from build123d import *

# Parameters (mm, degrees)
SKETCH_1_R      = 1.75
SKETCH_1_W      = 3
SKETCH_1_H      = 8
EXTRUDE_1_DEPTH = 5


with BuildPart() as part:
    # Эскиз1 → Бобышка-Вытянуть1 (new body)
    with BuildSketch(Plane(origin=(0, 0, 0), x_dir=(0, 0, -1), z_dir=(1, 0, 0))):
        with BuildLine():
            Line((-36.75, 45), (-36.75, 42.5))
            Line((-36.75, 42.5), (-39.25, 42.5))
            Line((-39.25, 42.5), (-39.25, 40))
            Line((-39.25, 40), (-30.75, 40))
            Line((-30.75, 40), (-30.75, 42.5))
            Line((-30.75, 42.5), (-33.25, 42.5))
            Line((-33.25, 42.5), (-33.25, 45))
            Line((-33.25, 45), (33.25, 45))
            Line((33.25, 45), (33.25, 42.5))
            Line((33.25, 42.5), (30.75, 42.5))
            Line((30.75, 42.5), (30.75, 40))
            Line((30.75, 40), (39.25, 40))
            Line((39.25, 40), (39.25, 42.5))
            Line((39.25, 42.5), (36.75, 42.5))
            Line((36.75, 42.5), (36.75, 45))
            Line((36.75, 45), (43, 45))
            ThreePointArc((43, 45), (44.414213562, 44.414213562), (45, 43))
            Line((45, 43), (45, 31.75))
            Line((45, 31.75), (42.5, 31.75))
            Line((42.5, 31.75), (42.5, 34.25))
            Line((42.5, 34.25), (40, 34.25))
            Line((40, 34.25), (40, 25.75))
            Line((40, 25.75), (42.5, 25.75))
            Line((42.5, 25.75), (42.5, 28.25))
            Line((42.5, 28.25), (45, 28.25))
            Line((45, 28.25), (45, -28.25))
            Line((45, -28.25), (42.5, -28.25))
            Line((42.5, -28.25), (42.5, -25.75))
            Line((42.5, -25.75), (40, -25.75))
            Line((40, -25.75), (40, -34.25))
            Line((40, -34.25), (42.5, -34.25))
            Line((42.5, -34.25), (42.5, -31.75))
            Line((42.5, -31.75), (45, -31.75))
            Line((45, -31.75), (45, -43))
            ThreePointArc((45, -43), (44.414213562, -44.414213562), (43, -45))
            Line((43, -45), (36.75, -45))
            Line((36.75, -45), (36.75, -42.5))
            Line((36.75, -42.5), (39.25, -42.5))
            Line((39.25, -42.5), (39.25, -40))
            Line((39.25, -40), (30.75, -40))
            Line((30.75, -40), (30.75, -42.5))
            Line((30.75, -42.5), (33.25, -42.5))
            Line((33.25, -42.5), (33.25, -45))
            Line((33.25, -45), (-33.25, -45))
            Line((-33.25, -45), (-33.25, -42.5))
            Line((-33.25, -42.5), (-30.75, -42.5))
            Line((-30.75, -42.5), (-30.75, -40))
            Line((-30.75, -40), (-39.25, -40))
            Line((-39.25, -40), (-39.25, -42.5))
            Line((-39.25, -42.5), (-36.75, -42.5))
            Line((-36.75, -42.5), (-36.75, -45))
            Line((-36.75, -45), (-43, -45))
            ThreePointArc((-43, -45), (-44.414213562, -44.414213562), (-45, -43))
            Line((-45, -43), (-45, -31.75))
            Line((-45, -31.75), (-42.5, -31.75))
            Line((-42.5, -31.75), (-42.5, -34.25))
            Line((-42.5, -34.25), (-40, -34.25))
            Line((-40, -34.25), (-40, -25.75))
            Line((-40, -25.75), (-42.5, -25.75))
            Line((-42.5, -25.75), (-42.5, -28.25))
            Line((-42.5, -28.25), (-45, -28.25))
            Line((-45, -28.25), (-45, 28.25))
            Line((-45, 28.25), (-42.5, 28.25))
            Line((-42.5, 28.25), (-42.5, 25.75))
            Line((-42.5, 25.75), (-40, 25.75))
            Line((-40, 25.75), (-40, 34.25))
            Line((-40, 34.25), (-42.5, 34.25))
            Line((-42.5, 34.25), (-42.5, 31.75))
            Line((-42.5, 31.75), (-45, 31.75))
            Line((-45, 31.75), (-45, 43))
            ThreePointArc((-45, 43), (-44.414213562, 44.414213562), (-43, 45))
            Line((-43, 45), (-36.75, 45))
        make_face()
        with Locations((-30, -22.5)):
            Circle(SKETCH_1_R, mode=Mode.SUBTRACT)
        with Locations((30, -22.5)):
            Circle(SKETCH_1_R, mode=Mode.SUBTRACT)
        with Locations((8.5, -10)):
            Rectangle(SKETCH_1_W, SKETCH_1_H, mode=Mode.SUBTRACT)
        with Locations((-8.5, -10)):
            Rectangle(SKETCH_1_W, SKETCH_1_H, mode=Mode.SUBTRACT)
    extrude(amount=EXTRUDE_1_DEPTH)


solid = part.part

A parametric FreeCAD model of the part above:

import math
import FreeCAD as App
import Part
import Sketcher


def add_polygon(sketch, points):
    """Adds a closed chain of lines whose ends are joined by coincident constraints."""
    first, n = sketch.GeometryCount, len(points)
    for a, b in zip(points, points[1:] + points[:1]):
        sketch.addGeometry(Part.LineSegment(App.Vector(*a, 0), App.Vector(*b, 0)), False)
    for i in range(n):
        sketch.addConstraint(Sketcher.Constraint("Coincident", first + i, 2, first + (i + 1) % n, 1))

doc = App.newDocument("Part")
body = doc.addObject("PartDesign::Body", "Body")

# Sketch on YZ plane
sketch1 = doc.addObject("Sketcher::SketchObject", "Sketch")
body.addObject(sketch1)
sketch1.AttachmentSupport = (doc.YZ_Plane, [""])
sketch1.MapMode = "FlatFace"
sketch1.addGeometry(Part.LineSegment(App.Vector(42.5, 36.8, 0), App.Vector(45, 36.8, 0)), False)  # 0
sketch1.addGeometry(Part.LineSegment(App.Vector(45, 36.8, 0), App.Vector(45, 43, 0)), False)  # 1
sketch1.addGeometry(Part.ArcOfCircle(Part.Circle(App.Vector(43, 43, 0), App.Vector(0, 0, 1), 2), math.radians(0), math.radians(90)), False)  # 2
sketch1.addGeometry(Part.LineSegment(App.Vector(43, 45, 0), App.Vector(31.8, 45, 0)), False)  # 3
sketch1.addGeometry(Part.LineSegment(App.Vector(31.8, 45, 0), App.Vector(31.8, 42.5, 0)), False)  # 4
sketch1.addGeometry(Part.LineSegment(App.Vector(31.8, 42.5, 0), App.Vector(34.2, 42.5, 0)), False)  # 5
sketch1.addGeometry(Part.LineSegment(App.Vector(34.2, 42.5, 0), App.Vector(34.2, 40, 0)), False)  # 6
sketch1.addGeometry(Part.LineSegment(App.Vector(34.2, 40, 0), App.Vector(25.8, 40, 0)), False)  # 7
sketch1.addGeometry(Part.LineSegment(App.Vector(25.8, 40, 0), App.Vector(25.8, 42.5, 0)), False)  # 8
sketch1.addGeometry(Part.LineSegment(App.Vector(25.8, 42.5, 0), App.Vector(28.2, 42.5, 0)), False)  # 9
sketch1.addGeometry(Part.LineSegment(App.Vector(28.2, 42.5, 0), App.Vector(28.2, 45, 0)), False)  # 10
sketch1.addGeometry(Part.LineSegment(App.Vector(28.2, 45, 0), App.Vector(-28.2, 45, 0)), False)  # 11
sketch1.addGeometry(Part.LineSegment(App.Vector(-28.2, 45, 0), App.Vector(-28.2, 42.5, 0)), False)  # 12
sketch1.addGeometry(Part.LineSegment(App.Vector(-28.2, 42.5, 0), App.Vector(-25.8, 42.5, 0)), False)  # 13
sketch1.addGeometry(Part.LineSegment(App.Vector(-25.8, 42.5, 0), App.Vector(-25.8, 40, 0)), False)  # 14
sketch1.addGeometry(Part.LineSegment(App.Vector(-25.8, 40, 0), App.Vector(-34.2, 40, 0)), False)  # 15
sketch1.addGeometry(Part.LineSegment(App.Vector(-34.2, 40, 0), App.Vector(-34.2, 42.5, 0)), False)  # 16
sketch1.addGeometry(Part.LineSegment(App.Vector(-34.2, 42.5, 0), App.Vector(-31.8, 42.5, 0)), False)  # 17
sketch1.addGeometry(Part.LineSegment(App.Vector(-31.8, 42.5, 0), App.Vector(-31.8, 45, 0)), False)  # 18
sketch1.addGeometry(Part.LineSegment(App.Vector(-31.8, 45, 0), App.Vector(-43, 45, 0)), False)  # 19
sketch1.addGeometry(Part.ArcOfCircle(Part.Circle(App.Vector(-43, 43, 0), App.Vector(0, 0, 1), 2), math.radians(90), math.radians(180)), False)  # 20
sketch1.addGeometry(Part.LineSegment(App.Vector(-45, 43, 0), App.Vector(-45, 36.8, 0)), False)  # 21
sketch1.addGeometry(Part.LineSegment(App.Vector(-45, 36.8, 0), App.Vector(-42.5, 36.8, 0)), False)  # 22
sketch1.addGeometry(Part.LineSegment(App.Vector(-42.5, 36.8, 0), App.Vector(-42.5, 39.2, 0)), False)  # 23
sketch1.addGeometry(Part.LineSegment(App.Vector(-42.5, 39.2, 0), App.Vector(-40, 39.2, 0)), False)  # 24
sketch1.addGeometry(Part.LineSegment(App.Vector(-40, 39.2, 0), App.Vector(-40, 30.8, 0)), False)  # 25
sketch1.addGeometry(Part.LineSegment(App.Vector(-40, 30.8, 0), App.Vector(-42.5, 30.8, 0)), False)  # 26
sketch1.addGeometry(Part.LineSegment(App.Vector(-42.5, 30.8, 0), App.Vector(-42.5, 33.2, 0)), False)  # 27
sketch1.addGeometry(Part.LineSegment(App.Vector(-42.5, 33.2, 0), App.Vector(-45, 33.2, 0)), False)  # 28
sketch1.addGeometry(Part.LineSegment(App.Vector(-45, 33.2, 0), App.Vector(-45, -33.2, 0)), False)  # 29
sketch1.addGeometry(Part.LineSegment(App.Vector(-45, -33.2, 0), App.Vector(-42.5, -33.2, 0)), False)  # 30
sketch1.addGeometry(Part.LineSegment(App.Vector(-42.5, -33.2, 0), App.Vector(-42.5, -30.8, 0)), False)  # 31
sketch1.addGeometry(Part.LineSegment(App.Vector(-42.5, -30.8, 0), App.Vector(-40, -30.8, 0)), False)  # 32
sketch1.addGeometry(Part.LineSegment(App.Vector(-40, -30.8, 0), App.Vector(-40, -39.2, 0)), False)  # 33
sketch1.addGeometry(Part.LineSegment(App.Vector(-40, -39.2, 0), App.Vector(-42.5, -39.2, 0)), False)  # 34
sketch1.addGeometry(Part.LineSegment(App.Vector(-42.5, -39.2, 0), App.Vector(-42.5, -36.8, 0)), False)  # 35
sketch1.addGeometry(Part.LineSegment(App.Vector(-42.5, -36.8, 0), App.Vector(-45, -36.8, 0)), False)  # 36
sketch1.addGeometry(Part.LineSegment(App.Vector(-45, -36.8, 0), App.Vector(-45, -43, 0)), False)  # 37
sketch1.addGeometry(Part.ArcOfCircle(Part.Circle(App.Vector(-43, -43, 0), App.Vector(0, 0, 1), 2), math.radians(-180), math.radians(-90)), False)  # 38
sketch1.addGeometry(Part.LineSegment(App.Vector(-43, -45, 0), App.Vector(-31.8, -45, 0)), False)  # 39
sketch1.addGeometry(Part.LineSegment(App.Vector(-31.8, -45, 0), App.Vector(-31.8, -42.5, 0)), False)  # 40
sketch1.addGeometry(Part.LineSegment(App.Vector(-31.8, -42.5, 0), App.Vector(-34.2, -42.5, 0)), False)  # 41
sketch1.addGeometry(Part.LineSegment(App.Vector(-34.2, -42.5, 0), App.Vector(-34.2, -40, 0)), False)  # 42
sketch1.addGeometry(Part.LineSegment(App.Vector(-34.2, -40, 0), App.Vector(-25.8, -40, 0)), False)  # 43
sketch1.addGeometry(Part.LineSegment(App.Vector(-25.8, -40, 0), App.Vector(-25.8, -42.5, 0)), False)  # 44
sketch1.addGeometry(Part.LineSegment(App.Vector(-25.8, -42.5, 0), App.Vector(-28.2, -42.5, 0)), False)  # 45
sketch1.addGeometry(Part.LineSegment(App.Vector(-28.2, -42.5, 0), App.Vector(-28.2, -45, 0)), False)  # 46
sketch1.addGeometry(Part.LineSegment(App.Vector(-28.2, -45, 0), App.Vector(28.2, -45, 0)), False)  # 47
sketch1.addGeometry(Part.LineSegment(App.Vector(28.2, -45, 0), App.Vector(28.2, -42.5, 0)), False)  # 48
sketch1.addGeometry(Part.LineSegment(App.Vector(28.2, -42.5, 0), App.Vector(25.8, -42.5, 0)), False)  # 49
sketch1.addGeometry(Part.LineSegment(App.Vector(25.8, -42.5, 0), App.Vector(25.8, -40, 0)), False)  # 50
sketch1.addGeometry(Part.LineSegment(App.Vector(25.8, -40, 0), App.Vector(34.2, -40, 0)), False)  # 51
sketch1.addGeometry(Part.LineSegment(App.Vector(34.2, -40, 0), App.Vector(34.2, -42.5, 0)), False)  # 52
sketch1.addGeometry(Part.LineSegment(App.Vector(34.2, -42.5, 0), App.Vector(31.8, -42.5, 0)), False)  # 53
sketch1.addGeometry(Part.LineSegment(App.Vector(31.8, -42.5, 0), App.Vector(31.8, -45, 0)), False)  # 54
sketch1.addGeometry(Part.LineSegment(App.Vector(31.8, -45, 0), App.Vector(43, -45, 0)), False)  # 55
sketch1.addGeometry(Part.ArcOfCircle(Part.Circle(App.Vector(43, -43, 0), App.Vector(0, 0, 1), 2), math.radians(-90), math.radians(0)), False)  # 56
sketch1.addGeometry(Part.LineSegment(App.Vector(45, -43, 0), App.Vector(45, -36.8, 0)), False)  # 57
sketch1.addGeometry(Part.LineSegment(App.Vector(45, -36.8, 0), App.Vector(42.5, -36.8, 0)), False)  # 58
sketch1.addGeometry(Part.LineSegment(App.Vector(42.5, -36.8, 0), App.Vector(42.5, -39.2, 0)), False)  # 59
sketch1.addGeometry(Part.LineSegment(App.Vector(42.5, -39.2, 0), App.Vector(40, -39.2, 0)), False)  # 60
sketch1.addGeometry(Part.LineSegment(App.Vector(40, -39.2, 0), App.Vector(40, -30.8, 0)), False)  # 61
sketch1.addGeometry(Part.LineSegment(App.Vector(40, -30.8, 0), App.Vector(42.5, -30.8, 0)), False)  # 62
sketch1.addGeometry(Part.LineSegment(App.Vector(42.5, -30.8, 0), App.Vector(42.5, -33.2, 0)), False)  # 63
sketch1.addGeometry(Part.LineSegment(App.Vector(42.5, -33.2, 0), App.Vector(45, -33.2, 0)), False)  # 64
sketch1.addGeometry(Part.LineSegment(App.Vector(45, -33.2, 0), App.Vector(45, 33.2, 0)), False)  # 65
sketch1.addGeometry(Part.LineSegment(App.Vector(45, 33.2, 0), App.Vector(42.5, 33.2, 0)), False)  # 66
sketch1.addGeometry(Part.LineSegment(App.Vector(42.5, 33.2, 0), App.Vector(42.5, 30.8, 0)), False)  # 67
sketch1.addGeometry(Part.LineSegment(App.Vector(42.5, 30.8, 0), App.Vector(40, 30.8, 0)), False)  # 68
sketch1.addGeometry(Part.LineSegment(App.Vector(40, 30.8, 0), App.Vector(40, 39.2, 0)), False)  # 69
sketch1.addGeometry(Part.LineSegment(App.Vector(40, 39.2, 0), App.Vector(42.5, 39.2, 0)), False)  # 70
sketch1.addGeometry(Part.LineSegment(App.Vector(42.5, 39.2, 0), App.Vector(42.5, 36.8, 0)), False)  # 71
sketch1.addGeometry(Part.Circle(App.Vector(-22.5, -30, 0), App.Vector(0, 0, 1), 1.8), False)  # 72
sketch1.addGeometry(Part.Circle(App.Vector(-22.5, 30, 0), App.Vector(0, 0, 1), 1.8), False)  # 73
add_polygon(sketch1, [(-14, -7), (-6, -7), (-6, -10), (-14, -10)])  # lines 74-77
add_polygon(sketch1, [(-14, 10), (-6, 10), (-6, 7), (-14, 7)])  # lines 78-81
sketch1.addConstraint([
    Sketcher.Constraint("Coincident", 0, 2, 1, 1),
    Sketcher.Constraint("Tangent", 1, 2, 2, 1),
    Sketcher.Constraint("Tangent", 2, 2, 3, 1),
    Sketcher.Constraint("Coincident", 3, 2, 4, 1),
    Sketcher.Constraint("Coincident", 4, 2, 5, 1),
    Sketcher.Constraint("Coincident", 5, 2, 6, 1),
    Sketcher.Constraint("Coincident", 6, 2, 7, 1),
    Sketcher.Constraint("Coincident", 7, 2, 8, 1),
    Sketcher.Constraint("Coincident", 8, 2, 9, 1),
    Sketcher.Constraint("Coincident", 9, 2, 10, 1),
    Sketcher.Constraint("Coincident", 10, 2, 11, 1),
    Sketcher.Constraint("Coincident", 11, 2, 12, 1),
    Sketcher.Constraint("Coincident", 12, 2, 13, 1),
    Sketcher.Constraint("Coincident", 13, 2, 14, 1),
    Sketcher.Constraint("Coincident", 14, 2, 15, 1),
    Sketcher.Constraint("Coincident", 15, 2, 16, 1),
    Sketcher.Constraint("Coincident", 16, 2, 17, 1),
    Sketcher.Constraint("Coincident", 17, 2, 18, 1),
    Sketcher.Constraint("Coincident", 18, 2, 19, 1),
    Sketcher.Constraint("Tangent", 19, 2, 20, 1),
    Sketcher.Constraint("Tangent", 20, 2, 21, 1),
    Sketcher.Constraint("Coincident", 21, 2, 22, 1),
    Sketcher.Constraint("Coincident", 22, 2, 23, 1),
    Sketcher.Constraint("Coincident", 23, 2, 24, 1),
    Sketcher.Constraint("Coincident", 24, 2, 25, 1),
    Sketcher.Constraint("Coincident", 25, 2, 26, 1),
    Sketcher.Constraint("Coincident", 26, 2, 27, 1),
    Sketcher.Constraint("Coincident", 27, 2, 28, 1),
    Sketcher.Constraint("Coincident", 28, 2, 29, 1),
    Sketcher.Constraint("Coincident", 29, 2, 30, 1),
    Sketcher.Constraint("Coincident", 30, 2, 31, 1),
    Sketcher.Constraint("Coincident", 31, 2, 32, 1),
    Sketcher.Constraint("Coincident", 32, 2, 33, 1),
    Sketcher.Constraint("Coincident", 33, 2, 34, 1),
    Sketcher.Constraint("Coincident", 34, 2, 35, 1),
    Sketcher.Constraint("Coincident", 35, 2, 36, 1),
    Sketcher.Constraint("Coincident", 36, 2, 37, 1),
    Sketcher.Constraint("Tangent", 37, 2, 38, 1),
    Sketcher.Constraint("Tangent", 38, 2, 39, 1),
    Sketcher.Constraint("Coincident", 39, 2, 40, 1),
    Sketcher.Constraint("Coincident", 40, 2, 41, 1),
    Sketcher.Constraint("Coincident", 41, 2, 42, 1),
    Sketcher.Constraint("Coincident", 42, 2, 43, 1),
    Sketcher.Constraint("Coincident", 43, 2, 44, 1),
    Sketcher.Constraint("Coincident", 44, 2, 45, 1),
    Sketcher.Constraint("Coincident", 45, 2, 46, 1),
    Sketcher.Constraint("Coincident", 46, 2, 47, 1),
    Sketcher.Constraint("Coincident", 47, 2, 48, 1),
    Sketcher.Constraint("Coincident", 48, 2, 49, 1),
    Sketcher.Constraint("Coincident", 49, 2, 50, 1),
    Sketcher.Constraint("Coincident", 50, 2, 51, 1),
    Sketcher.Constraint("Coincident", 51, 2, 52, 1),
    Sketcher.Constraint("Coincident", 52, 2, 53, 1),
    Sketcher.Constraint("Coincident", 53, 2, 54, 1),
    Sketcher.Constraint("Coincident", 54, 2, 55, 1),
    Sketcher.Constraint("Tangent", 55, 2, 56, 1),
    Sketcher.Constraint("Tangent", 56, 2, 57, 1),
    Sketcher.Constraint("Coincident", 57, 2, 58, 1),
    Sketcher.Constraint("Coincident", 58, 2, 59, 1),
    Sketcher.Constraint("Coincident", 59, 2, 60, 1),
    Sketcher.Constraint("Coincident", 60, 2, 61, 1),
    Sketcher.Constraint("Coincident", 61, 2, 62, 1),
    Sketcher.Constraint("Coincident", 62, 2, 63, 1),
    Sketcher.Constraint("Coincident", 63, 2, 64, 1),
    Sketcher.Constraint("Coincident", 64, 2, 65, 1),
    Sketcher.Constraint("Coincident", 65, 2, 66, 1),
    Sketcher.Constraint("Coincident", 66, 2, 67, 1),
    Sketcher.Constraint("Coincident", 67, 2, 68, 1),
    Sketcher.Constraint("Coincident", 68, 2, 69, 1),
    Sketcher.Constraint("Coincident", 69, 2, 70, 1),
    Sketcher.Constraint("Coincident", 70, 2, 71, 1),
    Sketcher.Constraint("Coincident", 71, 2, 0, 1),
    Sketcher.Constraint("Horizontal", 0),
    Sketcher.Constraint("Vertical", 1),
    Sketcher.Constraint("Horizontal", 3),
    Sketcher.Constraint("Vertical", 4),
    Sketcher.Constraint("Horizontal", 5),
    Sketcher.Constraint("Vertical", 6),
    Sketcher.Constraint("Horizontal", 7),
    Sketcher.Constraint("Vertical", 8),
    Sketcher.Constraint("Horizontal", 9),
    Sketcher.Constraint("Vertical", 10),
    Sketcher.Constraint("Horizontal", 11),
    Sketcher.Constraint("Vertical", 12),
    Sketcher.Constraint("Horizontal", 13),
    Sketcher.Constraint("Vertical", 14),
    Sketcher.Constraint("Horizontal", 15),
    Sketcher.Constraint("Vertical", 16),
    Sketcher.Constraint("Horizontal", 17),
    Sketcher.Constraint("Vertical", 18),
    Sketcher.Constraint("Horizontal", 19),
    Sketcher.Constraint("Vertical", 21),
    Sketcher.Constraint("Horizontal", 22),
    Sketcher.Constraint("Vertical", 23),
    Sketcher.Constraint("Horizontal", 24),
    Sketcher.Constraint("Vertical", 25),
    Sketcher.Constraint("Horizontal", 26),
    Sketcher.Constraint("Vertical", 27),
    Sketcher.Constraint("Horizontal", 28),
    Sketcher.Constraint("Vertical", 29),
    Sketcher.Constraint("Horizontal", 30),
    Sketcher.Constraint("Vertical", 31),
    Sketcher.Constraint("Horizontal", 32),
    Sketcher.Constraint("Vertical", 33),
    Sketcher.Constraint("Horizontal", 34),
    Sketcher.Constraint("Vertical", 35),
    Sketcher.Constraint("Horizontal", 36),
    Sketcher.Constraint("Vertical", 37),
    Sketcher.Constraint("Horizontal", 39),
    Sketcher.Constraint("Vertical", 40),
    Sketcher.Constraint("Horizontal", 41),
    Sketcher.Constraint("Vertical", 42),
    Sketcher.Constraint("Horizontal", 43),
    Sketcher.Constraint("Vertical", 44),
    Sketcher.Constraint("Horizontal", 45),
    Sketcher.Constraint("Vertical", 46),
    Sketcher.Constraint("Horizontal", 47),
    Sketcher.Constraint("Vertical", 48),
    Sketcher.Constraint("Horizontal", 49),
    Sketcher.Constraint("Vertical", 50),
    Sketcher.Constraint("Horizontal", 51),
    Sketcher.Constraint("Vertical", 52),
    Sketcher.Constraint("Horizontal", 53),
    Sketcher.Constraint("Vertical", 54),
    Sketcher.Constraint("Horizontal", 55),
    Sketcher.Constraint("Vertical", 57),
    Sketcher.Constraint("Horizontal", 58),
    Sketcher.Constraint("Vertical", 59),
    Sketcher.Constraint("Horizontal", 60),
    Sketcher.Constraint("Vertical", 61),
    Sketcher.Constraint("Horizontal", 62),
    Sketcher.Constraint("Vertical", 63),
    Sketcher.Constraint("Horizontal", 64),
    Sketcher.Constraint("Vertical", 65),
    Sketcher.Constraint("Horizontal", 66),
    Sketcher.Constraint("Vertical", 67),
    Sketcher.Constraint("Horizontal", 68),
    Sketcher.Constraint("Vertical", 69),
    Sketcher.Constraint("Horizontal", 70),
    Sketcher.Constraint("Vertical", 71),
    Sketcher.Constraint("Horizontal", 74),
    Sketcher.Constraint("Vertical", 75),
    Sketcher.Constraint("Horizontal", 76),
    Sketcher.Constraint("Vertical", 77),
    Sketcher.Constraint("Horizontal", 78),
    Sketcher.Constraint("Vertical", 79),
    Sketcher.Constraint("Horizontal", 80),
    Sketcher.Constraint("Vertical", 81),
    Sketcher.Constraint("Equal", 2, 20),
    Sketcher.Constraint("Equal", 20, 38),
    Sketcher.Constraint("Equal", 38, 56),
    Sketcher.Constraint("Equal", 72, 73),
    Sketcher.Constraint("Symmetric", 2, 3, 38, 3, -1, 1),
    Sketcher.Constraint("Symmetric", 20, 3, 56, 3, -1, 1),
    Sketcher.Constraint("Symmetric", 4, 2, 40, 2, -1, 1),
    Sketcher.Constraint("Symmetric", 6, 2, 42, 2, -1, 1),
    Sketcher.Constraint("Symmetric", 8, 2, 44, 2, -1, 1),
    Sketcher.Constraint("Symmetric", 10, 2, 46, 2, -1, 1),
    Sketcher.Constraint("Symmetric", 12, 2, 48, 2, -1, 1),
    Sketcher.Constraint("Symmetric", 14, 2, 50, 2, -1, 1),
    Sketcher.Constraint("Symmetric", 16, 2, 52, 2, -1, 1),
    Sketcher.Constraint("Symmetric", 22, 2, 58, 2, -1, 1),
    Sketcher.Constraint("Symmetric", 24, 2, 60, 2, -1, 1),
    Sketcher.Constraint("Symmetric", 26, 2, 62, 2, -1, 1),
    Sketcher.Constraint("Symmetric", 28, 2, 64, 2, -1, 1),
    Sketcher.Constraint("Symmetric", 30, 2, 66, 2, -1, 1),
    Sketcher.Constraint("Symmetric", 32, 2, 68, 2, -1, 1),
    Sketcher.Constraint("Symmetric", 34, 2, 70, 2, -1, 1),
    Sketcher.Constraint("Symmetric", 2, 3, 20, 3, -2),
    Sketcher.Constraint("Symmetric", 9, 2, 12, 2, -2),
    Sketcher.Constraint("Symmetric", 7, 2, 14, 2, -2),
    Sketcher.Constraint("Symmetric", 5, 2, 16, 2, -2),
    Sketcher.Constraint("Symmetric", 35, 2, 58, 2, -2),
    Sketcher.Constraint("Symmetric", 33, 2, 60, 2, -2),
    Sketcher.Constraint("Symmetric", 31, 2, 62, 2, -2),
    Sketcher.Constraint("Symmetric", 72, 3, 73, 3, -1),
    Sketcher.Constraint("Symmetric", 75, 2, 78, 2, -1),
    Sketcher.Constraint("Symmetric", 77, 2, 80, 2, -1),
    Sketcher.Constraint("Horizontal", 5, 2, 8, 2),
    Sketcher.Constraint("Horizontal", 3, 2, 10, 2),
    Sketcher.Constraint("Horizontal", 0, 2, 21, 2),
    Sketcher.Constraint("Horizontal", 30, 2, 63, 2),
    Sketcher.Constraint("Vertical", 23, 2, 26, 2),
    Sketcher.Constraint("Vertical", 21, 2, 28, 2),
    Sketcher.Constraint("Vertical", 18, 2, 39, 2),
    Sketcher.Constraint("Vertical", 4, 2, 53, 2),
    Sketcher.Constraint("Equal", 0, 5),
    Sketcher.Constraint("Equal", 5, 9),
    Sketcher.Constraint("Equal", 22, 24),
    Sketcher.Constraint("Equal", 70, 4),
    Sketcher.Constraint("Equal", 4, 6),
    Sketcher.Constraint("Equal", 18, 23),
    Sketcher.Constraint("Equal", 51, 25),
    Sketcher.Constraint("Equal", 23, 27),
    Sketcher.Constraint("Radius", 2, 2.0),
    Sketcher.Constraint("Diameter", 72, 3.5),
    Sketcher.Constraint("DistanceX", 74, 1, 74, 2, 8.0),
    Sketcher.Constraint("DistanceY", 75, 2, 75, 1, 3.0),
    Sketcher.Constraint("DistanceX", 0, 1, 0, 2, 2.5),
    Sketcher.Constraint("DistanceX", 7, 2, 7, 1, 8.5),
    Sketcher.Constraint("DistanceX", 11, 2, 11, 1, 56.5),
    Sketcher.Constraint("DistanceY", 29, 2, 29, 1, 66.5),
    Sketcher.Constraint("DistanceX", -1, 1, 2, 3, 43.0),
    Sketcher.Constraint("DistanceY", -1, 1, 2, 3, 43.0),
    Sketcher.Constraint("DistanceY", 72, 3, -1, 1, 30.0),
    Sketcher.Constraint("DistanceX", 74, 2, -1, 1, 6.0),
    Sketcher.Constraint("DistanceY", 74, 2, -1, 1, 7.0),
    Sketcher.Constraint("DistanceX", 72, 3, -1, 1, 22.5),
])
pad1 = doc.addObject("PartDesign::Pad", "Pad")
body.addObject(pad1)
pad1.Profile = sketch1
pad1.Length = 5

doc.recompute()
